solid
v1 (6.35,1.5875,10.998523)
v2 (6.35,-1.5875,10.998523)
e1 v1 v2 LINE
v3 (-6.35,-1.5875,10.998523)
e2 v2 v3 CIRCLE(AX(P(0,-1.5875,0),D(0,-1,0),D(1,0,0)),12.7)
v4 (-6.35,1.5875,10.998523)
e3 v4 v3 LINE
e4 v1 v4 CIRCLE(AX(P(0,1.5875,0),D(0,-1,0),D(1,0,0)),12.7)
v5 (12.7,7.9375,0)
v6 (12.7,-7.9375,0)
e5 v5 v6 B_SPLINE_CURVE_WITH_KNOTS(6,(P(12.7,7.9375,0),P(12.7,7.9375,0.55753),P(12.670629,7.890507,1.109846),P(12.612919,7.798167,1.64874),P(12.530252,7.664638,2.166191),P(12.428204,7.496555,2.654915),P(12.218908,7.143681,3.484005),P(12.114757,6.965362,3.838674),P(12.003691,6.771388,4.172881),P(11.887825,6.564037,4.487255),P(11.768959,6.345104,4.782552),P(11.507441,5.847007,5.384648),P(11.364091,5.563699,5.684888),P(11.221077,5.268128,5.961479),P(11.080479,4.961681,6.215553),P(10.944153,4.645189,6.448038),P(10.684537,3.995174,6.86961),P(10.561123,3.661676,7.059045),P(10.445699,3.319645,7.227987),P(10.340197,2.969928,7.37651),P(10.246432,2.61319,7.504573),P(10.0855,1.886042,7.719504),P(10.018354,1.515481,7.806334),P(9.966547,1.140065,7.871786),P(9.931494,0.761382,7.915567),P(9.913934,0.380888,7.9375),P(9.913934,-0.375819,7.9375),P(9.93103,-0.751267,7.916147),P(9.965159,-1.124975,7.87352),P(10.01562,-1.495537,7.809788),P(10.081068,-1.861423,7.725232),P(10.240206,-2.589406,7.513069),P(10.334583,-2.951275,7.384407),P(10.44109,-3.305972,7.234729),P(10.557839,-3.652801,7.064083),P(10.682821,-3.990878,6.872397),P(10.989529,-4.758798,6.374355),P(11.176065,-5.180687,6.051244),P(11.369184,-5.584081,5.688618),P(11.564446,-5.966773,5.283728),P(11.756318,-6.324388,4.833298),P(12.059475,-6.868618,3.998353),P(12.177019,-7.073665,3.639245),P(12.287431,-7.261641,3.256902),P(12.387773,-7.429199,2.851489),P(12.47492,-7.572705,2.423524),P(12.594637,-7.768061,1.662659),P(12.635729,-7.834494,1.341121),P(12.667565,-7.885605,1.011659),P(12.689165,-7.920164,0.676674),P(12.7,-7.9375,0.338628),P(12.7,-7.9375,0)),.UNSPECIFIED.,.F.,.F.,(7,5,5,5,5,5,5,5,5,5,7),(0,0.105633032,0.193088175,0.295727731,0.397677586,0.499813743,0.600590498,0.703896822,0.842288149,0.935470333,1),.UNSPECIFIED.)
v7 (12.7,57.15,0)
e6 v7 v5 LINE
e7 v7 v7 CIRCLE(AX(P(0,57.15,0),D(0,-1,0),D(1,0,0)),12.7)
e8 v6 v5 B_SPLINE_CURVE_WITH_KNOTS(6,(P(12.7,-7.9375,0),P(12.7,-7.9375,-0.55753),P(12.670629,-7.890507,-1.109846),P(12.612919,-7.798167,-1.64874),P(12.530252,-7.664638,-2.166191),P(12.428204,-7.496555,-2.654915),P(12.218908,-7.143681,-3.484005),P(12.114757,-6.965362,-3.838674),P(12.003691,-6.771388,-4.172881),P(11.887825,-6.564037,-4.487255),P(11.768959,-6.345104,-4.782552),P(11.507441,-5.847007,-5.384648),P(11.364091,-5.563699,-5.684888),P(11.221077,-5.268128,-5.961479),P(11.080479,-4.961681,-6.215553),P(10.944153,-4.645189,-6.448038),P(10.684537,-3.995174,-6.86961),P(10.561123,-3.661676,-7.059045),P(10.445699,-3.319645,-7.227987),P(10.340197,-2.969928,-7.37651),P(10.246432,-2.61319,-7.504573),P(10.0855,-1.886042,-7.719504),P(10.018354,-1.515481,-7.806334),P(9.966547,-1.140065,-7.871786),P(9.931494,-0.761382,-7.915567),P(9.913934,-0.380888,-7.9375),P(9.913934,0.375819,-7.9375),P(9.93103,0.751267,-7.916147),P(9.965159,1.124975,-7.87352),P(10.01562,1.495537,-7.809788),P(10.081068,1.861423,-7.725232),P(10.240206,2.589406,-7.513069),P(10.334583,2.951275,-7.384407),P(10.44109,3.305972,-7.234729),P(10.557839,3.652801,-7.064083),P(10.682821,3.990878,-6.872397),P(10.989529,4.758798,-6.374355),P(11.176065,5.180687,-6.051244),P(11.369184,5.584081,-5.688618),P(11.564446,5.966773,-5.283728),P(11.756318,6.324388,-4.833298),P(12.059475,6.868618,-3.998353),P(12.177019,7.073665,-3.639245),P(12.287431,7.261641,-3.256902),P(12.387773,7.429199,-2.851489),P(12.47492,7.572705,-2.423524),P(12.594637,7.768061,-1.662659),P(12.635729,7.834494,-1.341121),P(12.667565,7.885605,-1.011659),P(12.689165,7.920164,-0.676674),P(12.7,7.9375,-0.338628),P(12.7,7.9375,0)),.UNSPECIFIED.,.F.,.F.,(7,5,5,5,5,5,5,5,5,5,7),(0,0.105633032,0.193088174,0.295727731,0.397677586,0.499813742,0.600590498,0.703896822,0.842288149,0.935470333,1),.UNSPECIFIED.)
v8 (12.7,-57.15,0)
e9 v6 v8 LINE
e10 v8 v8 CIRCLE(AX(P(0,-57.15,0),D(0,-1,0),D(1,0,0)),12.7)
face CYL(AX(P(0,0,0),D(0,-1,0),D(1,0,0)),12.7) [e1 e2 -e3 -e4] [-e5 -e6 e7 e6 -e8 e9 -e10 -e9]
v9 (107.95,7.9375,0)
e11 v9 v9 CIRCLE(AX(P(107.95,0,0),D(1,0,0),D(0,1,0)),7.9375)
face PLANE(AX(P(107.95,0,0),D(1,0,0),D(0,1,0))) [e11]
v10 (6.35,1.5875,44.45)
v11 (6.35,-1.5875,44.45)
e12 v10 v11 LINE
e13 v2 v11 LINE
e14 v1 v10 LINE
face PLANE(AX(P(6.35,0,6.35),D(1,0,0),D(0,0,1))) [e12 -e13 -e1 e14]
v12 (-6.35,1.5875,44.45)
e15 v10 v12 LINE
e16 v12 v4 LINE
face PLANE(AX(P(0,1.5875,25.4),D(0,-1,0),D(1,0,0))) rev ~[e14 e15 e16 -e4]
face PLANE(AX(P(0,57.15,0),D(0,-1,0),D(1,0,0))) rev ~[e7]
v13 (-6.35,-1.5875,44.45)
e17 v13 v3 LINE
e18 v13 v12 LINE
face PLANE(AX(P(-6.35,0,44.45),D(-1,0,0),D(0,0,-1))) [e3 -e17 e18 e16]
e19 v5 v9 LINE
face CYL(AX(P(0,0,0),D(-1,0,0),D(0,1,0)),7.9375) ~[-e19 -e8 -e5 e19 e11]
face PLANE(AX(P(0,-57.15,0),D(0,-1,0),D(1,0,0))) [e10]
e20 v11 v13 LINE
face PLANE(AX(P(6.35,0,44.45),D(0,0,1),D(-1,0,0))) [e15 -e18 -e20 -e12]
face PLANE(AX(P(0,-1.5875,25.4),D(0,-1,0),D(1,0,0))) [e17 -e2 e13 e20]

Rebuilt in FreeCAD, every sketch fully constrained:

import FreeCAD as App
import Part
import Sketcher

V = App.Vector
Q = App.Units.Quantity


def add_polygon(sketch, points):
    """Adds a closed chain of lines whose ends are joined by coincident constraints."""
    first, n = sketch.GeometryCount, len(points)
    for a, b in zip(points, points[1:] + points[:1]):
        sketch.addGeometry(Part.LineSegment(App.Vector(*a, 0), App.Vector(*b, 0)), False)
    for i in range(n):
        sketch.addConstraint(Sketcher.Constraint("Coincident", first + i, 2, first + (i + 1) % n, 1))

doc = App.newDocument("Part")
params = doc.addObject("Spreadsheet::Sheet", "Params")
for row, (alias, value) in enumerate([
    ("sketch1_diameter", "0.625 in"),
    ("pad1_length", "4.25 in"),
    ("sketch2_diameter", "1 in"),
    ("pad2_length", "4.5 in"),
    ("sketch3_width", "0.5 in"),
    ("sketch3_height", "1.5 in"),
    ("pad3_length", "0.125 in"),
], start=1):
    params.set(f"A{row}", alias)
    params.set(f"B{row}", "=" + value)
    params.setAlias(f"B{row}", alias)

body = doc.addObject("PartDesign::Body", "Body")

# Sketch on YZ plane
sketch1 = body.newObject("Sketcher::SketchObject", "Sketch")
sketch1.AttachmentSupport = (doc.getObject("YZ_Plane"), [""])
sketch1.MapMode = "FlatFace"
sketch1.addGeometry(Part.Circle(V(0, 0, 0), V(0, 0, 1), 7.9375), False)
sketch1.addConstraint([
    Sketcher.Constraint("Coincident", 0, 3, -1, 1),
    Sketcher.Constraint("Diameter", 0, Q("0.625 in")),
])
sketch1.setExpression("Constraints[1]", "Params.sketch1_diameter")
pad1 = body.newObject("PartDesign::Pad", "Pad")
pad1.Profile = sketch1
pad1.setExpression("Length", "Params.pad1_length")

# Sketch on XZ plane
sketch2 = body.newObject("Sketcher::SketchObject", "Sketch001")
sketch2.AttachmentSupport = (doc.getObject("XZ_Plane"), [""])
sketch2.MapMode = "FlatFace"
sketch2.addGeometry(Part.Circle(V(0, 0, 0), V(0, 0, 1), 12.7), False)
sketch2.addConstraint([
    Sketcher.Constraint("Coincident", 0, 3, -1, 1),
    Sketcher.Constraint("Diameter", 0, Q("1 in")),
])
sketch2.setExpression("Constraints[1]", "Params.sketch2_diameter")
pad2 = body.newObject("PartDesign::Pad", "Pad001")
pad2.Profile = sketch2
pad2.setExpression("Length", "Params.pad2_length")
pad2.Midplane = True

# Sketch on XZ plane
sketch3 = body.newObject("Sketcher::SketchObject", "Sketch002")
sketch3.AttachmentSupport = (doc.getObject("XZ_Plane"), [""])
sketch3.MapMode = "FlatFace"
add_polygon(sketch3, [(-6.35, 6.35), (6.35, 6.35), (6.35, 44.45), (-6.35, 44.45)])  # lines 0-3
sketch3.addConstraint([
    Sketcher.Constraint("Horizontal", 0),
    Sketcher.Constraint("Vertical", 1),
    Sketcher.Constraint("Horizontal", 2),
    Sketcher.Constraint("Vertical", 3),
    Sketcher.Constraint("DistanceX", 0, 1, 0, 2, Q("0.5 in")),
    Sketcher.Constraint("DistanceY", 1, 1, 1, 2, Q("1.5 in")),
    Sketcher.Constraint("DistanceX", -1, 1, 0, 2, Q("0.25 in")),
    Sketcher.Constraint("DistanceY", -1, 1, 0, 2, Q("0.25 in")),
])
sketch3.setExpression("Constraints[8]", "Params.sketch3_width")
sketch3.setExpression("Constraints[9]", "Params.sketch3_height")
pad3 = body.newObject("PartDesign::Pad", "Pad002")
pad3.Profile = sketch3
pad3.setExpression("Length", "Params.pad3_length")
pad3.Midplane = True

doc.recompute()
